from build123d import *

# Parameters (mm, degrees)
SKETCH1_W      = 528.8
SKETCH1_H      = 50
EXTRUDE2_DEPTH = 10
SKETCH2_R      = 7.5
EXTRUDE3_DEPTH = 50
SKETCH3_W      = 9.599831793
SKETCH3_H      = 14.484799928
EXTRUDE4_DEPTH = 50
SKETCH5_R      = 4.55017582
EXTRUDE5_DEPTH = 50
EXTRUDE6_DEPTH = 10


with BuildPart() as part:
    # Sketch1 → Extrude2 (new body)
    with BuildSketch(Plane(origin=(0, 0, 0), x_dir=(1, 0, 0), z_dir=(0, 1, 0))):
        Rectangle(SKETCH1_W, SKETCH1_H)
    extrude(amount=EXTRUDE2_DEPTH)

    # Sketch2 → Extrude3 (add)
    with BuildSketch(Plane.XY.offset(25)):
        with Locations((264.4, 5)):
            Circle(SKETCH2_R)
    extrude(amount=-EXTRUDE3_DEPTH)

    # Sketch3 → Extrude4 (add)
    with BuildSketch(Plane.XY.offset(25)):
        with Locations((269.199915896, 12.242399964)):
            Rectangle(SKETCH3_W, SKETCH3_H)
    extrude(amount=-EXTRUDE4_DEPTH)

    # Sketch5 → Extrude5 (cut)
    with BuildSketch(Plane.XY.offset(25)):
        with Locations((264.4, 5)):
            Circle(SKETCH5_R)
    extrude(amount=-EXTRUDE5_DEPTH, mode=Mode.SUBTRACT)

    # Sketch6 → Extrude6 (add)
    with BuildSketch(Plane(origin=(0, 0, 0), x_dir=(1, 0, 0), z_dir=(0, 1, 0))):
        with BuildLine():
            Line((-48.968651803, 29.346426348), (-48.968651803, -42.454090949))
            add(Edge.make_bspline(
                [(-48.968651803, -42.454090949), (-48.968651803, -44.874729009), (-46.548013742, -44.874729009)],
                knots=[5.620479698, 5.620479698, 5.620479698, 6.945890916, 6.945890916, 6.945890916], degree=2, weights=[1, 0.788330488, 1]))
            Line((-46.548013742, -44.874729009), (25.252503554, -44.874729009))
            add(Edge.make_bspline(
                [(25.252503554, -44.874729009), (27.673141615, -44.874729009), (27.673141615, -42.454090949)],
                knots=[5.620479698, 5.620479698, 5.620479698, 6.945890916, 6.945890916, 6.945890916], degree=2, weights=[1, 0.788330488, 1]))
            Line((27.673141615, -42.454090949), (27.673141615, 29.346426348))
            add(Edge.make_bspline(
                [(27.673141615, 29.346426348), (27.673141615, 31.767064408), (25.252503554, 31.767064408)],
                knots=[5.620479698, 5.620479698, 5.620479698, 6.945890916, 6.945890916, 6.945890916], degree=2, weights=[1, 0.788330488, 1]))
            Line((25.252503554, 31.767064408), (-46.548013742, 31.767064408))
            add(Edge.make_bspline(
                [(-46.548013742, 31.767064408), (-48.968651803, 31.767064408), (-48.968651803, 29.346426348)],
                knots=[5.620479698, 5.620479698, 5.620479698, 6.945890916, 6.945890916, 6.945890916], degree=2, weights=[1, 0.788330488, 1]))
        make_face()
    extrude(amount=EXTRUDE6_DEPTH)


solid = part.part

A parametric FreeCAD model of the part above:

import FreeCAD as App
import Part
import Sketcher
from FreeCAD import Vector

doc = App.newDocument("Part")
body = doc.addObject("PartDesign::Body", "Body")

sketch1 = doc.addObject("Sketcher::SketchObject", "Sketch")
body.addObject(sketch1)
sketch1.AttachmentSupport = (doc.XZ_Plane, [""])
sketch1.MapMode = "FlatFace"
sketch1.addGeometry([
    Part.LineSegment(Vector(-264, -25, 0), Vector(-264, 25, 0)),
    Part.LineSegment(Vector(-264, 25, 0), Vector(264, 25, 0)),
    Part.LineSegment(Vector(264, 25, 0), Vector(264, -25, 0)),
    Part.LineSegment(Vector(264, -25, 0), Vector(-264, -25, 0)),
], False)
sketch1.addConstraint([
    Sketcher.Constraint("Coincident", 0, 2, 1, 1),
    Sketcher.Constraint("Coincident", 1, 2, 2, 1),
    Sketcher.Constraint("Coincident", 2, 2, 3, 1),
    Sketcher.Constraint("Coincident", 3, 2, 0, 1),
    Sketcher.Constraint("Vertical", 0),
    Sketcher.Constraint("Horizontal", 1),
    Sketcher.Constraint("Vertical", 2),
    Sketcher.Constraint("Horizontal", 3),
    Sketcher.Constraint("Symmetric", 0, 2, 2, 2, -1, 1),
    Sketcher.Constraint("DistanceY", 0, 1, 0, 2, 50.0),
    Sketcher.Constraint("DistanceX", 1, 1, 1, 2, 528.8),
])
pad1 = doc.addObject("PartDesign::Pad", "Pad")
body.addObject(pad1)
pad1.Profile = sketch1
pad1.Length = 10
pad1.Reversed = True

sketch2 = doc.addObject("Sketcher::SketchObject", "Sketch001")
body.addObject(sketch2)
sketch2.AttachmentSupport = (doc.XY_Plane, [""])
sketch2.MapMode = "FlatFace"
sketch2.AttachmentOffset = App.Placement(Vector(0, 0, 25), App.Rotation())
sketch2.addGeometry(Part.Circle(Vector(264, 5, 0), Vector(0, 0, 1), 8), False)
sketch2.addConstraint([
    Sketcher.Constraint("Diameter", 0, 15.0),
    Sketcher.Constraint("DistanceY", -1, 1, 0, 3, 5.0),
    Sketcher.Constraint("DistanceX", -1, 1, 0, 3, 264.4),
])
pad2 = doc.addObject("PartDesign::Pad", "Pad001")
body.addObject(pad2)
pad2.Profile = sketch2
pad2.Length = 50
pad2.Reversed = True

sketch3 = doc.addObject("Sketcher::SketchObject", "Sketch002")
body.addObject(sketch3)
sketch3.AttachmentSupport = (doc.XY_Plane, [""])
sketch3.MapMode = "FlatFace"
sketch3.AttachmentOffset = App.Placement(Vector(0, 0, 25), App.Rotation())
sketch3.addGeometry([
    Part.LineSegment(Vector(264, 19, 0), Vector(264, 5, 0)),
    Part.LineSegment(Vector(264, 5, 0), Vector(274, 5, 0)),
    Part.LineSegment(Vector(274, 5, 0), Vector(274, 19, 0)),
    Part.LineSegment(Vector(274, 19, 0), Vector(264, 19, 0)),
], False)
sketch3.addConstraint([
    Sketcher.Constraint("Coincident", 0, 2, 1, 1),
    Sketcher.Constraint("Coincident", 1, 2, 2, 1),
    Sketcher.Constraint("Coincident", 2, 2, 3, 1),
    Sketcher.Constraint("Coincident", 3, 2, 0, 1),
    Sketcher.Constraint("Vertical", 0),
    Sketcher.Constraint("Horizontal", 1),
    Sketcher.Constraint("Vertical", 2),
    Sketcher.Constraint("Horizontal", 3),
    Sketcher.Constraint("DistanceY", -1, 1, 0, 2, 5.0),
    Sketcher.Constraint("DistanceX", -1, 1, 0, 2, 264.4),
    Sketcher.Constraint("DistanceY", 0, 2, 0, 1, 14.4848),
    Sketcher.Constraint("DistanceX", 1, 1, 1, 2, 9.599832),
])
pad3 = doc.addObject("PartDesign::Pad", "Pad002")
body.addObject(pad3)
pad3.Profile = sketch3
pad3.Length = 50
pad3.Reversed = True

sketch4 = doc.addObject("Sketcher::SketchObject", "Sketch003")
body.addObject(sketch4)
sketch4.AttachmentSupport = (doc.XY_Plane, [""])
sketch4.MapMode = "FlatFace"
sketch4.AttachmentOffset = App.Placement(Vector(0, 0, 25), App.Rotation())
sketch4.addGeometry(Part.Circle(Vector(264.4, 5, 0), Vector(0, 0, 1), 4.6), False)
sketch4.addConstraint([
    Sketcher.Constraint("DistanceY", -1, 1, 0, 3, 5.0),
    Sketcher.Constraint("DistanceX", -1, 1, 0, 3, 264.4),
    Sketcher.Constraint("Diameter", 0, 9.100352),
])
pocket1 = doc.addObject("PartDesign::Pocket", "Pocket")
body.addObject(pocket1)
pocket1.Profile = sketch4
pocket1.Length = 50

sketch5 = doc.addObject("Sketcher::SketchObject", "Sketch004")
body.addObject(sketch5)
sketch5.AttachmentSupport = (doc.XZ_Plane, [""])
sketch5.MapMode = "FlatFace"
sketch5.addGeometry([
    Part.LineSegment(Vector(-48.968652, -29.346426, 0), Vector(-48.968652, 42.454091, 0)),
    Part.BSplineCurve([Vector(-48.968652, 42.454091, 0), Vector(-48.968652, 44.874729, 0), Vector(-46.548014, 44.874729, 0)], [3, 3], [5.620479698, 6.945890916], False, 2, [1, 0.788330488, 1], False),
    Part.LineSegment(Vector(-46.548014, 44.874729, 0), Vector(25.252504, 44.874729, 0)),
    Part.BSplineCurve([Vector(25.252504, 44.874729, 0), Vector(27.673142, 44.874729, 0), Vector(27.673142, 42.454091, 0)], [3, 3], [5.620479698, 6.945890916], False, 2, [1, 0.788330488, 1], False),
    Part.LineSegment(Vector(27.673142, 42.454091, 0), Vector(27.673142, -29.346426, 0)),
    Part.BSplineCurve([Vector(27.673142, -29.346426, 0), Vector(27.673142, -31.767064, 0), Vector(25.252504, -31.767064, 0)], [3, 3], [5.620479698, 6.945890916], False, 2, [1, 0.788330488, 1], False),
    Part.LineSegment(Vector(25.252504, -31.767064, 0), Vector(-46.548014, -31.767064, 0)),
    Part.BSplineCurve([Vector(-46.548014, -31.767064, 0), Vector(-48.968652, -31.767064, 0), Vector(-48.968652, -29.346426, 0)], [3, 3], [5.620479698, 6.945890916], False, 2, [1, 0.788330488, 1], False),
], False)
sketch5.addConstraint([
    Sketcher.Constraint("Block", 1),
    Sketcher.Constraint("Block", 3),
    Sketcher.Constraint("Block", 5),
    Sketcher.Constraint("Block", 7),
    Sketcher.Constraint("Coincident", 0, 2, 1, 1),
    Sketcher.Constraint("Coincident", 1, 2, 2, 1),
    Sketcher.Constraint("Coincident", 2, 2, 3, 1),
    Sketcher.Constraint("Coincident", 3, 2, 4, 1),
    Sketcher.Constraint("Coincident", 4, 2, 5, 1),
    Sketcher.Constraint("Coincident", 5, 2, 6, 1),
    Sketcher.Constraint("Coincident", 6, 2, 7, 1),
    Sketcher.Constraint("Coincident", 7, 2, 0, 1),
])
pad4 = doc.addObject("PartDesign::Pad", "Pad003")
body.addObject(pad4)
pad4.Profile = sketch5
pad4.Length = 10
pad4.Reversed = True

doc.recompute()
